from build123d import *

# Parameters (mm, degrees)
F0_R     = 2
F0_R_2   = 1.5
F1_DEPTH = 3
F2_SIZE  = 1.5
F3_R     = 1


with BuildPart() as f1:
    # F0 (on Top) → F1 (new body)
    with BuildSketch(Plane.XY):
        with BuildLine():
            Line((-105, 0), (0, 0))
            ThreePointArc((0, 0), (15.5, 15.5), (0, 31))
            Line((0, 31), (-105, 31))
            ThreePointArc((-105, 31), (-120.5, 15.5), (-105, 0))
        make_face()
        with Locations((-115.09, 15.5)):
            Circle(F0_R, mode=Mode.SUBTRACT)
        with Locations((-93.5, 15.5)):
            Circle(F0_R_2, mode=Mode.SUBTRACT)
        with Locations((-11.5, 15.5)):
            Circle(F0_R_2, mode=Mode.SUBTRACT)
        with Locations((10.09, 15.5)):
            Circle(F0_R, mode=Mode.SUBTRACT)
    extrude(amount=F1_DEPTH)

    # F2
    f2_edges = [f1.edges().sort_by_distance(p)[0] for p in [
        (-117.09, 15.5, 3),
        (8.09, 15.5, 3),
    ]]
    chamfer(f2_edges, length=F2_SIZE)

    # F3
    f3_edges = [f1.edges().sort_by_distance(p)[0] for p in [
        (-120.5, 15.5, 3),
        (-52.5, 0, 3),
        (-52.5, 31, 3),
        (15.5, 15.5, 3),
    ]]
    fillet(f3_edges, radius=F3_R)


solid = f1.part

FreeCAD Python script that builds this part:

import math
import FreeCAD as App
import Part
import Sketcher

V = App.Vector
Q = App.Units.Quantity


def edges_at(feature, points):
    """Names of the edges that pass closest to the given points."""
    edges = feature.Shape.Edges
    near = lambda p: min(range(len(edges)), key=lambda i: edges[i].distToShape(Part.Vertex(*p))[0])
    return sorted({f"Edge{near(p) + 1}" for p in points})

doc = App.newDocument("Part")
params = doc.addObject("Spreadsheet::Sheet", "Params")
for row, (alias, value) in enumerate([
    ("sketch1_diameter", "4 mm"),
    ("sketch1_diameter2", "3 mm"),
    ("sketch1_radius", "15.5 mm"),
    ("sketch1_width", "105 mm"),
    ("pad1_length", "3 mm"),
    ("chamfer_size", "1.5 mm"),
    ("fillet_radius", "1 mm"),
], start=1):
    params.set(f"A{row}", alias)
    params.set(f"B{row}", "=" + value)
    params.setAlias(f"B{row}", alias)

body = doc.addObject("PartDesign::Body", "Body")

# Sketch on XY plane
sketch1 = body.newObject("Sketcher::SketchObject", "Sketch")
sketch1.AttachmentSupport = (doc.getObject("XY_Plane"), [""])
sketch1.MapMode = "FlatFace"
sketch1.addGeometry(Part.LineSegment(V(-105, 0, 0), V(0, 0, 0)), False)
sketch1.addGeometry(Part.ArcOfCircle(Part.Circle(V(0, 15.5, 0), V(0, 0, 1), 15.5), math.radians(-90), math.radians(90)), False)
sketch1.addGeometry(Part.LineSegment(V(0, 31, 0), V(-105, 31, 0)), False)
sketch1.addGeometry(Part.ArcOfCircle(Part.Circle(V(-105, 15.5, 0), V(0, 0, 1), 15.5), math.radians(90), math.radians(270)), False)
sketch1.addGeometry(Part.Circle(V(-115.1, 15.5, 0), V(0, 0, 1), 2), False)
sketch1.addGeometry(Part.Circle(V(-93.5, 15.5, 0), V(0, 0, 1), 1.5), False)
sketch1.addGeometry(Part.Circle(V(-11.5, 15.5, 0), V(0, 0, 1), 1.5), False)
sketch1.addGeometry(Part.Circle(V(10.1, 15.5, 0), V(0, 0, 1), 2), False)
sketch1.addConstraint(Sketcher.Constraint("Tangent", 0, 2, 1, 1))
sketch1.addConstraint(Sketcher.Constraint("Tangent", 1, 2, 2, 1))
sketch1.addConstraint(Sketcher.Constraint("Tangent", 2, 2, 3, 1))
sketch1.addConstraint(Sketcher.Constraint("Tangent", 3, 2, 0, 1))
sketch1.addConstraint(Sketcher.Constraint("Horizontal", 0))
sketch1.addConstraint(Sketcher.Constraint("Horizontal", 2))
sketch1.addConstraint(Sketcher.Constraint("Coincident", 0, 2, -1, 1))
sketch1.addConstraint(Sketcher.Constraint("Equal", 5, 6))
sketch1.addConstraint(Sketcher.Constraint("Equal", 4, 7))
sketch1.addConstraint(Sketcher.Constraint("Horizontal", 3, 3, 4, 3))
sketch1.addConstraint(Sketcher.Constraint("Horizontal", 4, 3, 5, 3))
sketch1.addConstraint(Sketcher.Constraint("Horizontal", 5, 3, 6, 3))
sketch1.addConstraint(Sketcher.Constraint("Horizontal", 6, 3, 7, 3))
sketch1.addConstraint(Sketcher.Constraint("Diameter", 4, Q("4 mm")))
sketch1.addConstraint(Sketcher.Constraint("Diameter", 5, Q("3 mm")))
sketch1.addConstraint(Sketcher.Constraint("Radius", 1, Q("15.5 mm")))
sketch1.addConstraint(Sketcher.Constraint("DistanceX", 0, 1, 0, 2, Q("105 mm")))
sketch1.addConstraint(Sketcher.Constraint("DistanceX", 5, 3, 6, 3, Q("82 mm")))
sketch1.addConstraint(Sketcher.Constraint("DistanceX", 5, 3, -1, 1, Q("93.5 mm")))
sketch1.addConstraint(Sketcher.Constraint("DistanceX", 4, 3, -1, 1, Q("115.09 mm")))
sketch1.addConstraint(Sketcher.Constraint("DistanceX", -1, 1, 7, 3, Q("10.09 mm")))
sketch1.setExpression("Constraints[13]", "Params.sketch1_diameter")
sketch1.setExpression("Constraints[14]", "Params.sketch1_diameter2")
sketch1.setExpression("Constraints[15]", "Params.sketch1_radius")
sketch1.setExpression("Constraints[16]", "Params.sketch1_width")
pad1 = body.newObject("PartDesign::Pad", "Pad")
pad1.Profile = sketch1
pad1.setExpression("Length", "Params.pad1_length")
doc.recompute()

chamfer = body.newObject("PartDesign::Chamfer", "Chamfer")
chamfer.Base = (pad1, edges_at(pad1, [(-117.09, 15.5, 3), (8.09, 15.5, 3)]))
chamfer.setExpression("Size", "Params.chamfer_size")
doc.recompute()

fillet = body.newObject("PartDesign::Fillet", "Fillet")
fillet.Base = (chamfer, edges_at(chamfer, [
    (-120.5, 15.5, 3),
    (-52.5, 0, 3),
    (-52.5, 31, 3),
    (15.5, 15.5, 3),
]))
fillet.setExpression("Radius", "Params.fillet_radius")

doc.recompute()
